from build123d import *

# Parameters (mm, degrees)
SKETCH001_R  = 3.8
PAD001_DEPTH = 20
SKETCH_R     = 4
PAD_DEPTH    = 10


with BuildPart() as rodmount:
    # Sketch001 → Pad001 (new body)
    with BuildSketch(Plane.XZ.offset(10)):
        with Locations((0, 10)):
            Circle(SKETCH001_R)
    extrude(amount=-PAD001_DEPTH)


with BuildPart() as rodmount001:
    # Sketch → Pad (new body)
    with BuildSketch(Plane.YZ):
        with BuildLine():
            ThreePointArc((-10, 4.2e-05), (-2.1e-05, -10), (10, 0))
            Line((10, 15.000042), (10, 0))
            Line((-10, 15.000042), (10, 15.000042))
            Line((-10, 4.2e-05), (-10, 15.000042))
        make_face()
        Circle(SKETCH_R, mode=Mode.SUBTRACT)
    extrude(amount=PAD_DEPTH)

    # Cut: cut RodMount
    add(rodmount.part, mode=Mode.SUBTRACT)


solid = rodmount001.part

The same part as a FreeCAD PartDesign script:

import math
import FreeCAD as App
import Part
import Sketcher

V = App.Vector
Q = App.Units.Quantity

doc = App.newDocument("Part")
body = doc.addObject("PartDesign::Body", "Body")

sketch1 = body.newObject("Sketcher::SketchObject", "Sketch")
sketch1.AttachmentSupport = (doc.getObject("XZ_Plane"), [""])
sketch1.MapMode = "FlatFace"
sketch1.AttachmentOffset = App.Placement(V(0, 0, 10), App.Rotation())
sketch1.addGeometry(Part.Circle(V(0, 10, 0), V(0, 0, 1), 3.8), False)
sketch1.addConstraint([
    Sketcher.Constraint("PointOnObject", 0, 3, -2),
    Sketcher.Constraint("Diameter", 0, Q("7.6 mm")),
    Sketcher.Constraint("DistanceY", -1, 1, 0, 3, Q("10 mm")),
])
pad1 = body.newObject("PartDesign::Pad", "Pad")
pad1.Profile = sketch1
pad1.Length = 20
pad1.Reversed = True
body2 = doc.addObject("PartDesign::Body", "Body001")

sketch2 = body2.newObject("Sketcher::SketchObject", "Sketch001")
sketch2.AttachmentSupport = (doc.getObject("YZ_Plane001"), [""])
sketch2.MapMode = "FlatFace"
sketch2.addGeometry([
    Part.ArcOfCircle(Part.Circle(V(0, 0, 0), V(0, 0, 1), 10), math.radians(179.999759), math.radians(360)),
    Part.LineSegment(V(10, 0, 0), V(10, 15.000042, 0)),
    Part.LineSegment(V(10, 15.000042, 0), V(-10, 15.000042, 0)),
    Part.LineSegment(V(-10, 15.000042, 0), V(-10, 0.000042, 0)),
    Part.Circle(V(0, 0, 0), V(0, 0, 1), 4),
], False)
sketch2.addConstraint([
    Sketcher.Constraint("Tangent", 0, 2, 1, 1),
    Sketcher.Constraint("Coincident", 1, 2, 2, 1),
    Sketcher.Constraint("Coincident", 2, 2, 3, 1),
    Sketcher.Constraint("Coincident", 3, 2, 0, 1),
    Sketcher.Constraint("Vertical", 1),
    Sketcher.Constraint("Horizontal", 2),
    Sketcher.Constraint("Vertical", 3),
    Sketcher.Constraint("Coincident", 0, 3, -1, 1),
    Sketcher.Constraint("Coincident", 4, 3, -1, 1),
    Sketcher.Constraint("Diameter", 4, Q("8 mm")),
    Sketcher.Constraint("Radius", 0, Q("10 mm")),
    Sketcher.Constraint("DistanceY", 3, 2, 3, 1, Q("15 mm")),
    Sketcher.Constraint("DistanceY", 1, 1, 1, 2, Q("15.000042 mm")),
])
pad2 = body2.newObject("PartDesign::Pad", "Pad001")
pad2.Profile = sketch2
pad2.Length = 10
doc.recompute()

boolean = body2.newObject("PartDesign::Boolean", "Boolean")
boolean.Type = "Cut"
boolean.addObjects([body])

doc.recompute()
